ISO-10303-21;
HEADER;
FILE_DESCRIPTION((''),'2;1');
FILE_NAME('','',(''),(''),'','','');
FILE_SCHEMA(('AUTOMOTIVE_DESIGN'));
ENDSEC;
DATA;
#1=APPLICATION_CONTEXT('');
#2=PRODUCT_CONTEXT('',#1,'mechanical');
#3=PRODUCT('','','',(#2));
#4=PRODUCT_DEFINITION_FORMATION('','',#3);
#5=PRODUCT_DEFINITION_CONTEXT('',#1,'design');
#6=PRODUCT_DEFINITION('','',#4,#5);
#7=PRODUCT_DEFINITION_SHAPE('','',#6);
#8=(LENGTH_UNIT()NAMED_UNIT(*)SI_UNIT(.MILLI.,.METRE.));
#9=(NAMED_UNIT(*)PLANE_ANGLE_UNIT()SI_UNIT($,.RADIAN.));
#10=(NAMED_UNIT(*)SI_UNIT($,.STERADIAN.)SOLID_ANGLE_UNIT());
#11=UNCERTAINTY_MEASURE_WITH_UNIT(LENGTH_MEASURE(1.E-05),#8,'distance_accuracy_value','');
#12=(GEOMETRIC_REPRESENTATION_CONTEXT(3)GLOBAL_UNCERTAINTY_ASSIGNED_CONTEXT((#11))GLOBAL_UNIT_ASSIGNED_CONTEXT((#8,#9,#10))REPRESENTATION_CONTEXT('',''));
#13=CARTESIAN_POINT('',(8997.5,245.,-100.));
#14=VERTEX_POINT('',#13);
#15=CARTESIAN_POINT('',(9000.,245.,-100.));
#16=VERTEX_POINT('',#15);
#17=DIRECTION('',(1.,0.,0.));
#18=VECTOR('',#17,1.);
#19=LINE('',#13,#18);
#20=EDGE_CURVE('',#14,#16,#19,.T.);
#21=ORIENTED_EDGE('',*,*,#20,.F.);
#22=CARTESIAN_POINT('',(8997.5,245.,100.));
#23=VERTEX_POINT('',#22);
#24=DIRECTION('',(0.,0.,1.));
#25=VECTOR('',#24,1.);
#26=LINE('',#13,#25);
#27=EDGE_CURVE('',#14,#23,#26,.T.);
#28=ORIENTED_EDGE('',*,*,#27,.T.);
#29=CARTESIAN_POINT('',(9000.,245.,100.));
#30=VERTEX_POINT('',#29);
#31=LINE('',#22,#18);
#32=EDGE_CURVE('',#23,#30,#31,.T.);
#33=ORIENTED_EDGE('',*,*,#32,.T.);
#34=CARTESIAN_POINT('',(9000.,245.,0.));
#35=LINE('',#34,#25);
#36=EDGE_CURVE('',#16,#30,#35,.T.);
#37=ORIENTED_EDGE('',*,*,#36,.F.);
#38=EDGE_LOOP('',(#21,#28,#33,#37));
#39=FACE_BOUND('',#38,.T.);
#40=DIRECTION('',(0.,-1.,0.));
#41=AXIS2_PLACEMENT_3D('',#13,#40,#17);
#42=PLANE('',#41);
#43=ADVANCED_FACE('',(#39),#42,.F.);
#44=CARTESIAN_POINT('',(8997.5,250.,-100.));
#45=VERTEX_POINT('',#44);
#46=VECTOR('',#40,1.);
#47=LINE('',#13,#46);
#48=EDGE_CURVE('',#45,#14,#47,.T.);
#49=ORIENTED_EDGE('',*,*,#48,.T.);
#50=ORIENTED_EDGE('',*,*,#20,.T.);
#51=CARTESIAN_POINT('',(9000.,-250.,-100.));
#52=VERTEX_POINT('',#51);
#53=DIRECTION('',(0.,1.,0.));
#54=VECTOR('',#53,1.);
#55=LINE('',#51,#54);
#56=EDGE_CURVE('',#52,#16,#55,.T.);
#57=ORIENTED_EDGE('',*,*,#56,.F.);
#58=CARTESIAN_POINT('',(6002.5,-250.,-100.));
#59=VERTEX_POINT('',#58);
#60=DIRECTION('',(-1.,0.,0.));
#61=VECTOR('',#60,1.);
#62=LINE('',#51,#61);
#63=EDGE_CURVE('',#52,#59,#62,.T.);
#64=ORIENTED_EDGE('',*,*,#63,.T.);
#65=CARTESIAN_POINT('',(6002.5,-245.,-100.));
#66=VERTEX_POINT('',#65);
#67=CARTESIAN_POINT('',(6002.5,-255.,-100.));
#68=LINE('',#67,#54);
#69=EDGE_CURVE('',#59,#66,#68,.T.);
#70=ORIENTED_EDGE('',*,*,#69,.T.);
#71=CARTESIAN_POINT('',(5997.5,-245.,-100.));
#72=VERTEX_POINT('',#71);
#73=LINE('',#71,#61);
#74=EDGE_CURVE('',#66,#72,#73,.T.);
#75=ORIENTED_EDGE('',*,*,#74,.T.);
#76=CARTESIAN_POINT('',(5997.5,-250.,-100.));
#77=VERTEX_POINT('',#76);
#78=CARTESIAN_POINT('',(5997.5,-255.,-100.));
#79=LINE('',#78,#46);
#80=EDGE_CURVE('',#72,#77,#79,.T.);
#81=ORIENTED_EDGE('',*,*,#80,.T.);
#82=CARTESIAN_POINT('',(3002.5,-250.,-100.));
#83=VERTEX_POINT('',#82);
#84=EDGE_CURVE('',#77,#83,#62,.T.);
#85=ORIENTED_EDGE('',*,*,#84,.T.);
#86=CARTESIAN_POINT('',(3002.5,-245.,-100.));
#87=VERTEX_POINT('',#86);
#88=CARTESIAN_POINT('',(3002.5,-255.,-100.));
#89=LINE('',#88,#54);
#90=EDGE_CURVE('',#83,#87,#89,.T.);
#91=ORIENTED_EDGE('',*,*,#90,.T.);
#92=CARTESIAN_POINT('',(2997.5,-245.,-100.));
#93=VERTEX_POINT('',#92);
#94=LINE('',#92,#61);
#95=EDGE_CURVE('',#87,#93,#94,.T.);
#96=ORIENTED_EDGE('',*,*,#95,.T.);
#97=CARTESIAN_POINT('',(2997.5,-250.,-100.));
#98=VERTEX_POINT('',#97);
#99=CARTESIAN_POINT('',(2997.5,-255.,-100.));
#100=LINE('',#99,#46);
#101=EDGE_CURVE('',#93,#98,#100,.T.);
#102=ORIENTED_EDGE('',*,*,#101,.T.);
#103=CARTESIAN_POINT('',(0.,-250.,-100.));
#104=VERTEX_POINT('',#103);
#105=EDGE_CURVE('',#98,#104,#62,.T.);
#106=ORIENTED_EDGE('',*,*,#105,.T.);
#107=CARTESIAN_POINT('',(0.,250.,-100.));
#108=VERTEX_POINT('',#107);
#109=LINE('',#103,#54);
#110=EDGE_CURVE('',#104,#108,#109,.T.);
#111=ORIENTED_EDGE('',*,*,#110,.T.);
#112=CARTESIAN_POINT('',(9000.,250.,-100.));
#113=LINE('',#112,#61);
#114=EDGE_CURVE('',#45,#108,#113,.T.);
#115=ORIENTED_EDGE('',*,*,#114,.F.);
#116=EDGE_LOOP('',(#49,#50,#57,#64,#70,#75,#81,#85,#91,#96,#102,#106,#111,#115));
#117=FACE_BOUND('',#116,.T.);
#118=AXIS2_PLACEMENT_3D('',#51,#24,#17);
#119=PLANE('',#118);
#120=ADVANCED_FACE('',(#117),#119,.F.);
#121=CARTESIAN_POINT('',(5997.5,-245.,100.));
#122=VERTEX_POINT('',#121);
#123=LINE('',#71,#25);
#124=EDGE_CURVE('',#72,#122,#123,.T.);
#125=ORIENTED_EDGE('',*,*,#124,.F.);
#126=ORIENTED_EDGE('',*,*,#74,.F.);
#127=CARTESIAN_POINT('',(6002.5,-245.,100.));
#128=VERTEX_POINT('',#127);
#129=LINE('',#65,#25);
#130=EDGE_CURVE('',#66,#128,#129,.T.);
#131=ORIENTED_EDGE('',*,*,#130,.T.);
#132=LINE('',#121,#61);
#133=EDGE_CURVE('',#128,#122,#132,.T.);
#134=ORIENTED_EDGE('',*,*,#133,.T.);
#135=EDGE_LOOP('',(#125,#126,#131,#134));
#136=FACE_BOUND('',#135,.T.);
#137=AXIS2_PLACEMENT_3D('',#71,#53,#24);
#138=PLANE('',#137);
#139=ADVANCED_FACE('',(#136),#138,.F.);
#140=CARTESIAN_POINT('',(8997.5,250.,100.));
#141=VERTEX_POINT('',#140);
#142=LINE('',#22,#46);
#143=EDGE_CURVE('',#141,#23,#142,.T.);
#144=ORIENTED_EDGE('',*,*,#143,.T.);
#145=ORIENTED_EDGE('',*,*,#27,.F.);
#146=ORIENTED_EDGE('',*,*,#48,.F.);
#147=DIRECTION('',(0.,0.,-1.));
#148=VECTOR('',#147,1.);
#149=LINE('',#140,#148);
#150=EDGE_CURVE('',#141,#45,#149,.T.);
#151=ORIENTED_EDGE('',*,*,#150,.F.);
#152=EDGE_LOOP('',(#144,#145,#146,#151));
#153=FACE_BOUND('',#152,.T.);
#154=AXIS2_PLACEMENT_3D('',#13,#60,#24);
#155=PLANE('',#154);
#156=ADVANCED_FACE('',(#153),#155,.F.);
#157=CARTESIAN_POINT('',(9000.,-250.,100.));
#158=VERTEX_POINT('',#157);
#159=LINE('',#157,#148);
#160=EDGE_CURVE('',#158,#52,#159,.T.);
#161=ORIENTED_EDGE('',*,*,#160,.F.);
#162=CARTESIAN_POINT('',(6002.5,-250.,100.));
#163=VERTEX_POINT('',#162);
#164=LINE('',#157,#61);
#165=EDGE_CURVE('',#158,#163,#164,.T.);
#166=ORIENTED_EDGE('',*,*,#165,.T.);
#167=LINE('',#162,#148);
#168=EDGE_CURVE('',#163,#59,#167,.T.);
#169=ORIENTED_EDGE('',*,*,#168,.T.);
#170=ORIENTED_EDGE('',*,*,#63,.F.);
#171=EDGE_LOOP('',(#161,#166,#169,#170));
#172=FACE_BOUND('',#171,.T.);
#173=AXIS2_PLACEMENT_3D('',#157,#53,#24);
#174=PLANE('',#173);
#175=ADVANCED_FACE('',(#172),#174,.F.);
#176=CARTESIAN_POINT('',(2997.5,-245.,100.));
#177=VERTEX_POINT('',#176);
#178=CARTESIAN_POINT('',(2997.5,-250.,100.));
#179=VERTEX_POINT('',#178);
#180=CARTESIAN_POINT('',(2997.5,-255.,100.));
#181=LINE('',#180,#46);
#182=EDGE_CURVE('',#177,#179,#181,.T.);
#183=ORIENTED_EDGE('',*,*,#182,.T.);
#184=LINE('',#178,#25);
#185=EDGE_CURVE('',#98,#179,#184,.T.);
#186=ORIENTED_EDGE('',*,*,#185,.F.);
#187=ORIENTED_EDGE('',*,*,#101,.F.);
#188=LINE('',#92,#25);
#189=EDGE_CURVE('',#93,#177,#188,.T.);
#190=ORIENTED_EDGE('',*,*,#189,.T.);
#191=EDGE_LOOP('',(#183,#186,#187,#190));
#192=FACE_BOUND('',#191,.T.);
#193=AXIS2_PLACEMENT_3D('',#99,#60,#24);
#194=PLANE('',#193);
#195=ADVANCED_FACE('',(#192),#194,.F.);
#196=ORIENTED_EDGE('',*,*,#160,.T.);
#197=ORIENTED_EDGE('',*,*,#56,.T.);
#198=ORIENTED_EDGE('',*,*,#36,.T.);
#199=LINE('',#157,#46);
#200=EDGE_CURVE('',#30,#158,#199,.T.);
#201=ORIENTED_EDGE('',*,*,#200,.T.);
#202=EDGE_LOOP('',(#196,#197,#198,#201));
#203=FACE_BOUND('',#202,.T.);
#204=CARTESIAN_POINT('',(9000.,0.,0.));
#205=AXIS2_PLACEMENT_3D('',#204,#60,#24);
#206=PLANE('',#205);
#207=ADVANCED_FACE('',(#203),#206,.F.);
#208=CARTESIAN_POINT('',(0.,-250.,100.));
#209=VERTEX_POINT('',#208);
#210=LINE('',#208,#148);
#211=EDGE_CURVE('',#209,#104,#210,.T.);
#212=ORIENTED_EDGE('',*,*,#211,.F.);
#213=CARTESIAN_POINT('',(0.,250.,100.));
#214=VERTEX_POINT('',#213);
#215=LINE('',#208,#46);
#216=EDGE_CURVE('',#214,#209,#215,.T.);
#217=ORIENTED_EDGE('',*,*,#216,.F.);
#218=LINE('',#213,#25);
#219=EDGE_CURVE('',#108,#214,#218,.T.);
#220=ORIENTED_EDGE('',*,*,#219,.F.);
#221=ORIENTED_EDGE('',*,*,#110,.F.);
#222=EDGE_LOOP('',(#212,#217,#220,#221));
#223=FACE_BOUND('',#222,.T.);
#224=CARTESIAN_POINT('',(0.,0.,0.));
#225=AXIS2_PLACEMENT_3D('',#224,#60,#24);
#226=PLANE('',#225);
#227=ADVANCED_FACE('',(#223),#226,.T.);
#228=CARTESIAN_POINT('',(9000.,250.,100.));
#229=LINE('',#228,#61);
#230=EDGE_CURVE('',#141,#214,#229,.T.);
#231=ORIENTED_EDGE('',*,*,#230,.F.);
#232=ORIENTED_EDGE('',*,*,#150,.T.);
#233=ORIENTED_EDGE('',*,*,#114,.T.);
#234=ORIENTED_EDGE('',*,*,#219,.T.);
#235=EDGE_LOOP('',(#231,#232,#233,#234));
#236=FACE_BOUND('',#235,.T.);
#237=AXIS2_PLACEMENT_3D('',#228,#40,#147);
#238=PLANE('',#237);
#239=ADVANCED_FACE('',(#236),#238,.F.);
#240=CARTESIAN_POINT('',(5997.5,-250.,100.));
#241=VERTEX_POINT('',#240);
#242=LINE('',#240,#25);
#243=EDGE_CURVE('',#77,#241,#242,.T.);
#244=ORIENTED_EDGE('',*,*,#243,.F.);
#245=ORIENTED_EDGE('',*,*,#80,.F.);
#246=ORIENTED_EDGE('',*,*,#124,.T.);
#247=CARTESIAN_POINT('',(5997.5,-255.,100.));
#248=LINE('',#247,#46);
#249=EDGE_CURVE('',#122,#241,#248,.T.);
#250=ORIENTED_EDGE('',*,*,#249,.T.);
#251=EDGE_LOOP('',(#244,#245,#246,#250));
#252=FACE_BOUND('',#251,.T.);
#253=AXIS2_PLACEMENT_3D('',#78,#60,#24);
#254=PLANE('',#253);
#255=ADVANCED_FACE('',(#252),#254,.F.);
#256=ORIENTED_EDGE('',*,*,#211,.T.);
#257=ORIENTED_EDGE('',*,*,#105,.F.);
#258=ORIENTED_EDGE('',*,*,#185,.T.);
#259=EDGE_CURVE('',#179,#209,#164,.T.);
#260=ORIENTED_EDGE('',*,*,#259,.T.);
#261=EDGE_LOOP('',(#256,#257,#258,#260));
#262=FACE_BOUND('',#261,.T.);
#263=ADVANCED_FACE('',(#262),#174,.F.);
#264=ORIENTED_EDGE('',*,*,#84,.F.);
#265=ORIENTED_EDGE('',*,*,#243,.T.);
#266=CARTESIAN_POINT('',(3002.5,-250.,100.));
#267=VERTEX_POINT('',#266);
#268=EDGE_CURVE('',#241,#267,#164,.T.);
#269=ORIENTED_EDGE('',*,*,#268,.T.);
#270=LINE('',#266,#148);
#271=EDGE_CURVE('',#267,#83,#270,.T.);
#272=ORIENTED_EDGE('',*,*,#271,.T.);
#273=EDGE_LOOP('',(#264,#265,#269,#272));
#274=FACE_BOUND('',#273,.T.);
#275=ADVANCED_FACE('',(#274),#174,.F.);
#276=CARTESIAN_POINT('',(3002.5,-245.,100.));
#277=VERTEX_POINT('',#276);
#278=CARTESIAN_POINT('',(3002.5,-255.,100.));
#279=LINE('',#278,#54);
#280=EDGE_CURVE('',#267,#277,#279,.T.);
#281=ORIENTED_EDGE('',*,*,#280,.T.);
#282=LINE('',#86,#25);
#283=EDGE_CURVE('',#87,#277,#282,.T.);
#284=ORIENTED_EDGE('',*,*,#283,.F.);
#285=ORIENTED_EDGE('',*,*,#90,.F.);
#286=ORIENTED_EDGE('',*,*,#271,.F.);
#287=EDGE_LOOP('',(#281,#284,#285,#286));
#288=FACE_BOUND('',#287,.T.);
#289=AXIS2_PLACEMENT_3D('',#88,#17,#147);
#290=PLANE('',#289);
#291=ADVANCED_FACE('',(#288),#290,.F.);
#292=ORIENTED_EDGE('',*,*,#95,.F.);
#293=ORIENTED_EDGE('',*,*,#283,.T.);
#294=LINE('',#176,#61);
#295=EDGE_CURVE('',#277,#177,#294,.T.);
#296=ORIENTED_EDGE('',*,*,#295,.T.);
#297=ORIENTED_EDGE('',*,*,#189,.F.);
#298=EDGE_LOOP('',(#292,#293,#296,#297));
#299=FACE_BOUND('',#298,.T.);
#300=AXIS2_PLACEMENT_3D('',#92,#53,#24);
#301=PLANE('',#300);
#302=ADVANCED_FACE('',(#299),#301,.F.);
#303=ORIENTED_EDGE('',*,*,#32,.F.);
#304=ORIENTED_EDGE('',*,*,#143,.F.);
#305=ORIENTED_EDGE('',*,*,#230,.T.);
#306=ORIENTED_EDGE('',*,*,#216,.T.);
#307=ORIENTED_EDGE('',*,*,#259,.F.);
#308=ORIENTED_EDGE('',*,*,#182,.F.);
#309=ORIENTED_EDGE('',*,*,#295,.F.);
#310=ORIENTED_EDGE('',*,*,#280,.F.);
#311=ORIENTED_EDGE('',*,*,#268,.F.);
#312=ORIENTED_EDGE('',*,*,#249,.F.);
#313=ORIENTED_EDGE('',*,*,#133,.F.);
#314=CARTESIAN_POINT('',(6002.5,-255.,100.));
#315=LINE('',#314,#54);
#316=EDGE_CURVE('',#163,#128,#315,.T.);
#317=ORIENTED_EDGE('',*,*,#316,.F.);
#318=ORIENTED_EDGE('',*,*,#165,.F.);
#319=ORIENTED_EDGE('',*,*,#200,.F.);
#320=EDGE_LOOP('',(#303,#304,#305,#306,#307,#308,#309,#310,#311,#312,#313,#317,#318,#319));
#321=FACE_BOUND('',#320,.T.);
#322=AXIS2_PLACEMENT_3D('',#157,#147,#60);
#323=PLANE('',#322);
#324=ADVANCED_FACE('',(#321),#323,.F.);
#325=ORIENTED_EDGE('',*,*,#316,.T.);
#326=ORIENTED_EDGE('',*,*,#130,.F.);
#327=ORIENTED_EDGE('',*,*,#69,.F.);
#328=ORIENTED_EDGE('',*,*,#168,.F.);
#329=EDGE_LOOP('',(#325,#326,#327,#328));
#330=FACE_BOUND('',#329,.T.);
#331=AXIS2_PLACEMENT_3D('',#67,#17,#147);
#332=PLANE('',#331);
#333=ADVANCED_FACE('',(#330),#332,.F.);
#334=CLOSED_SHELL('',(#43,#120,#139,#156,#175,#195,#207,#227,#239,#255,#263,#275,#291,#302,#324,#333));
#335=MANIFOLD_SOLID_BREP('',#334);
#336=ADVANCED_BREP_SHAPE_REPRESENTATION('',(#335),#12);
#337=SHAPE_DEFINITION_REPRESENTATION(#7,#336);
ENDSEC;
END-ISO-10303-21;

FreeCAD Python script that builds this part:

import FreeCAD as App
import Part
import Sketcher
from FreeCAD import Vector
Q = App.Units.Quantity

doc = App.newDocument("Part")
body = doc.addObject("PartDesign::Body", "Body")

sketch1 = body.newObject("Sketcher::SketchObject", "Sketch")
sketch1.AttachmentSupport = (doc.getObject("YZ_Plane"), [""])
sketch1.MapMode = "FlatFace"
sketch1.addGeometry([
    Part.LineSegment(Vector(250, 100, 0), Vector(-250, 100, 0)),
    Part.LineSegment(Vector(-250, 100, 0), Vector(-250, -100, 0)),
    Part.LineSegment(Vector(-250, -100, 0), Vector(250, -100, 0)),
    Part.LineSegment(Vector(250, -100, 0), Vector(250, 100, 0)),
], False)
sketch1.addConstraint([
    Sketcher.Constraint("Coincident", 0, 2, 1, 1),
    Sketcher.Constraint("Coincident", 1, 2, 2, 1),
    Sketcher.Constraint("Coincident", 2, 2, 3, 1),
    Sketcher.Constraint("Coincident", 3, 2, 0, 1),
    Sketcher.Constraint("Horizontal", 0),
    Sketcher.Constraint("Vertical", 1),
    Sketcher.Constraint("Horizontal", 2),
    Sketcher.Constraint("Vertical", 3),
    Sketcher.Constraint("Symmetric", 0, 2, 2, 2, -1, 1),
    Sketcher.Constraint("DistanceX", 0, 2, 0, 1, Q("500 mm")),
    Sketcher.Constraint("DistanceY", 1, 2, 1, 1, Q("200 mm")),
])
pad1 = body.newObject("PartDesign::Pad", "Pad")
pad1.Profile = sketch1
pad1.Length = 9000

sketch2 = body.newObject("Sketcher::SketchObject", "Sketch001")
sketch2.AttachmentSupport = (doc.getObject("XY_Plane"), [""])
sketch2.MapMode = "FlatFace"
sketch2.AttachmentOffset = App.Placement(Vector(0, 0, 100), App.Rotation())
sketch2.addGeometry([
    Part.LineSegment(Vector(2998, -245, 0), Vector(2998, -255, 0)),
    Part.LineSegment(Vector(2998, -255, 0), Vector(3002, -255, 0)),
    Part.LineSegment(Vector(3002, -255, 0), Vector(3002, -245, 0)),
    Part.LineSegment(Vector(3002, -245, 0), Vector(2998, -245, 0)),
    Part.LineSegment(Vector(5998, -245, 0), Vector(5998, -255, 0)),
    Part.LineSegment(Vector(5998, -255, 0), Vector(6002, -255, 0)),
    Part.LineSegment(Vector(6002, -255, 0), Vector(6002, -245, 0)),
    Part.LineSegment(Vector(6002, -245, 0), Vector(5998, -245, 0)),
    Part.LineSegment(Vector(8998, 255, 0), Vector(8998, 245, 0)),
    Part.LineSegment(Vector(8998, 245, 0), Vector(9002, 245, 0)),
    Part.LineSegment(Vector(9002, 245, 0), Vector(9002, 255, 0)),
    Part.LineSegment(Vector(9002, 255, 0), Vector(8998, 255, 0)),
], False)
sketch2.addConstraint([
    Sketcher.Constraint("Coincident", 0, 2, 1, 1),
    Sketcher.Constraint("Coincident", 1, 2, 2, 1),
    Sketcher.Constraint("Coincident", 2, 2, 3, 1),
    Sketcher.Constraint("Coincident", 3, 2, 0, 1),
    Sketcher.Constraint("Coincident", 4, 2, 5, 1),
    Sketcher.Constraint("Coincident", 5, 2, 6, 1),
    Sketcher.Constraint("Coincident", 6, 2, 7, 1),
    Sketcher.Constraint("Coincident", 7, 2, 4, 1),
    Sketcher.Constraint("Coincident", 8, 2, 9, 1),
    Sketcher.Constraint("Coincident", 9, 2, 10, 1),
    Sketcher.Constraint("Coincident", 10, 2, 11, 1),
    Sketcher.Constraint("Coincident", 11, 2, 8, 1),
    Sketcher.Constraint("Vertical", 0),
    Sketcher.Constraint("Horizontal", 1),
    Sketcher.Constraint("Vertical", 2),
    Sketcher.Constraint("Horizontal", 3),
    Sketcher.Constraint("Vertical", 4),
    Sketcher.Constraint("Horizontal", 5),
    Sketcher.Constraint("Vertical", 6),
    Sketcher.Constraint("Horizontal", 7),
    Sketcher.Constraint("Vertical", 8),
    Sketcher.Constraint("Horizontal", 9),
    Sketcher.Constraint("Vertical", 10),
    Sketcher.Constraint("Horizontal", 11),
    Sketcher.Constraint("Horizontal", 1, 2, 4, 2),
    Sketcher.Constraint("Horizontal", 3, 2, 6, 2),
    Sketcher.Constraint("Equal", 3, 5),
    Sketcher.Constraint("Equal", 7, 9),
    Sketcher.Constraint("Equal", 6, 8),
    Sketcher.Constraint("DistanceX", 1, 1, 1, 2, Q("5 mm")),
    Sketcher.Constraint("DistanceY", 0, 2, 0, 1, Q("10 mm")),
    Sketcher.Constraint("DistanceY", 0, 2, -1, 1, Q("255 mm")),
    Sketcher.Constraint("DistanceY", -1, 1, 8, 2, Q("245 mm")),
    Sketcher.Constraint("DistanceX", 1, 2, 4, 2, Q("2995 mm")),
    Sketcher.Constraint("DistanceX", 6, 2, 8, 2, Q("2995 mm")),
    Sketcher.Constraint("DistanceX", -1, 1, 0, 2, Q("2997.5 mm")),
])
pocket1 = body.newObject("PartDesign::Pocket", "Pocket")
pocket1.Profile = sketch2
pocket1.Type = "ThroughAll"

doc.recompute()
